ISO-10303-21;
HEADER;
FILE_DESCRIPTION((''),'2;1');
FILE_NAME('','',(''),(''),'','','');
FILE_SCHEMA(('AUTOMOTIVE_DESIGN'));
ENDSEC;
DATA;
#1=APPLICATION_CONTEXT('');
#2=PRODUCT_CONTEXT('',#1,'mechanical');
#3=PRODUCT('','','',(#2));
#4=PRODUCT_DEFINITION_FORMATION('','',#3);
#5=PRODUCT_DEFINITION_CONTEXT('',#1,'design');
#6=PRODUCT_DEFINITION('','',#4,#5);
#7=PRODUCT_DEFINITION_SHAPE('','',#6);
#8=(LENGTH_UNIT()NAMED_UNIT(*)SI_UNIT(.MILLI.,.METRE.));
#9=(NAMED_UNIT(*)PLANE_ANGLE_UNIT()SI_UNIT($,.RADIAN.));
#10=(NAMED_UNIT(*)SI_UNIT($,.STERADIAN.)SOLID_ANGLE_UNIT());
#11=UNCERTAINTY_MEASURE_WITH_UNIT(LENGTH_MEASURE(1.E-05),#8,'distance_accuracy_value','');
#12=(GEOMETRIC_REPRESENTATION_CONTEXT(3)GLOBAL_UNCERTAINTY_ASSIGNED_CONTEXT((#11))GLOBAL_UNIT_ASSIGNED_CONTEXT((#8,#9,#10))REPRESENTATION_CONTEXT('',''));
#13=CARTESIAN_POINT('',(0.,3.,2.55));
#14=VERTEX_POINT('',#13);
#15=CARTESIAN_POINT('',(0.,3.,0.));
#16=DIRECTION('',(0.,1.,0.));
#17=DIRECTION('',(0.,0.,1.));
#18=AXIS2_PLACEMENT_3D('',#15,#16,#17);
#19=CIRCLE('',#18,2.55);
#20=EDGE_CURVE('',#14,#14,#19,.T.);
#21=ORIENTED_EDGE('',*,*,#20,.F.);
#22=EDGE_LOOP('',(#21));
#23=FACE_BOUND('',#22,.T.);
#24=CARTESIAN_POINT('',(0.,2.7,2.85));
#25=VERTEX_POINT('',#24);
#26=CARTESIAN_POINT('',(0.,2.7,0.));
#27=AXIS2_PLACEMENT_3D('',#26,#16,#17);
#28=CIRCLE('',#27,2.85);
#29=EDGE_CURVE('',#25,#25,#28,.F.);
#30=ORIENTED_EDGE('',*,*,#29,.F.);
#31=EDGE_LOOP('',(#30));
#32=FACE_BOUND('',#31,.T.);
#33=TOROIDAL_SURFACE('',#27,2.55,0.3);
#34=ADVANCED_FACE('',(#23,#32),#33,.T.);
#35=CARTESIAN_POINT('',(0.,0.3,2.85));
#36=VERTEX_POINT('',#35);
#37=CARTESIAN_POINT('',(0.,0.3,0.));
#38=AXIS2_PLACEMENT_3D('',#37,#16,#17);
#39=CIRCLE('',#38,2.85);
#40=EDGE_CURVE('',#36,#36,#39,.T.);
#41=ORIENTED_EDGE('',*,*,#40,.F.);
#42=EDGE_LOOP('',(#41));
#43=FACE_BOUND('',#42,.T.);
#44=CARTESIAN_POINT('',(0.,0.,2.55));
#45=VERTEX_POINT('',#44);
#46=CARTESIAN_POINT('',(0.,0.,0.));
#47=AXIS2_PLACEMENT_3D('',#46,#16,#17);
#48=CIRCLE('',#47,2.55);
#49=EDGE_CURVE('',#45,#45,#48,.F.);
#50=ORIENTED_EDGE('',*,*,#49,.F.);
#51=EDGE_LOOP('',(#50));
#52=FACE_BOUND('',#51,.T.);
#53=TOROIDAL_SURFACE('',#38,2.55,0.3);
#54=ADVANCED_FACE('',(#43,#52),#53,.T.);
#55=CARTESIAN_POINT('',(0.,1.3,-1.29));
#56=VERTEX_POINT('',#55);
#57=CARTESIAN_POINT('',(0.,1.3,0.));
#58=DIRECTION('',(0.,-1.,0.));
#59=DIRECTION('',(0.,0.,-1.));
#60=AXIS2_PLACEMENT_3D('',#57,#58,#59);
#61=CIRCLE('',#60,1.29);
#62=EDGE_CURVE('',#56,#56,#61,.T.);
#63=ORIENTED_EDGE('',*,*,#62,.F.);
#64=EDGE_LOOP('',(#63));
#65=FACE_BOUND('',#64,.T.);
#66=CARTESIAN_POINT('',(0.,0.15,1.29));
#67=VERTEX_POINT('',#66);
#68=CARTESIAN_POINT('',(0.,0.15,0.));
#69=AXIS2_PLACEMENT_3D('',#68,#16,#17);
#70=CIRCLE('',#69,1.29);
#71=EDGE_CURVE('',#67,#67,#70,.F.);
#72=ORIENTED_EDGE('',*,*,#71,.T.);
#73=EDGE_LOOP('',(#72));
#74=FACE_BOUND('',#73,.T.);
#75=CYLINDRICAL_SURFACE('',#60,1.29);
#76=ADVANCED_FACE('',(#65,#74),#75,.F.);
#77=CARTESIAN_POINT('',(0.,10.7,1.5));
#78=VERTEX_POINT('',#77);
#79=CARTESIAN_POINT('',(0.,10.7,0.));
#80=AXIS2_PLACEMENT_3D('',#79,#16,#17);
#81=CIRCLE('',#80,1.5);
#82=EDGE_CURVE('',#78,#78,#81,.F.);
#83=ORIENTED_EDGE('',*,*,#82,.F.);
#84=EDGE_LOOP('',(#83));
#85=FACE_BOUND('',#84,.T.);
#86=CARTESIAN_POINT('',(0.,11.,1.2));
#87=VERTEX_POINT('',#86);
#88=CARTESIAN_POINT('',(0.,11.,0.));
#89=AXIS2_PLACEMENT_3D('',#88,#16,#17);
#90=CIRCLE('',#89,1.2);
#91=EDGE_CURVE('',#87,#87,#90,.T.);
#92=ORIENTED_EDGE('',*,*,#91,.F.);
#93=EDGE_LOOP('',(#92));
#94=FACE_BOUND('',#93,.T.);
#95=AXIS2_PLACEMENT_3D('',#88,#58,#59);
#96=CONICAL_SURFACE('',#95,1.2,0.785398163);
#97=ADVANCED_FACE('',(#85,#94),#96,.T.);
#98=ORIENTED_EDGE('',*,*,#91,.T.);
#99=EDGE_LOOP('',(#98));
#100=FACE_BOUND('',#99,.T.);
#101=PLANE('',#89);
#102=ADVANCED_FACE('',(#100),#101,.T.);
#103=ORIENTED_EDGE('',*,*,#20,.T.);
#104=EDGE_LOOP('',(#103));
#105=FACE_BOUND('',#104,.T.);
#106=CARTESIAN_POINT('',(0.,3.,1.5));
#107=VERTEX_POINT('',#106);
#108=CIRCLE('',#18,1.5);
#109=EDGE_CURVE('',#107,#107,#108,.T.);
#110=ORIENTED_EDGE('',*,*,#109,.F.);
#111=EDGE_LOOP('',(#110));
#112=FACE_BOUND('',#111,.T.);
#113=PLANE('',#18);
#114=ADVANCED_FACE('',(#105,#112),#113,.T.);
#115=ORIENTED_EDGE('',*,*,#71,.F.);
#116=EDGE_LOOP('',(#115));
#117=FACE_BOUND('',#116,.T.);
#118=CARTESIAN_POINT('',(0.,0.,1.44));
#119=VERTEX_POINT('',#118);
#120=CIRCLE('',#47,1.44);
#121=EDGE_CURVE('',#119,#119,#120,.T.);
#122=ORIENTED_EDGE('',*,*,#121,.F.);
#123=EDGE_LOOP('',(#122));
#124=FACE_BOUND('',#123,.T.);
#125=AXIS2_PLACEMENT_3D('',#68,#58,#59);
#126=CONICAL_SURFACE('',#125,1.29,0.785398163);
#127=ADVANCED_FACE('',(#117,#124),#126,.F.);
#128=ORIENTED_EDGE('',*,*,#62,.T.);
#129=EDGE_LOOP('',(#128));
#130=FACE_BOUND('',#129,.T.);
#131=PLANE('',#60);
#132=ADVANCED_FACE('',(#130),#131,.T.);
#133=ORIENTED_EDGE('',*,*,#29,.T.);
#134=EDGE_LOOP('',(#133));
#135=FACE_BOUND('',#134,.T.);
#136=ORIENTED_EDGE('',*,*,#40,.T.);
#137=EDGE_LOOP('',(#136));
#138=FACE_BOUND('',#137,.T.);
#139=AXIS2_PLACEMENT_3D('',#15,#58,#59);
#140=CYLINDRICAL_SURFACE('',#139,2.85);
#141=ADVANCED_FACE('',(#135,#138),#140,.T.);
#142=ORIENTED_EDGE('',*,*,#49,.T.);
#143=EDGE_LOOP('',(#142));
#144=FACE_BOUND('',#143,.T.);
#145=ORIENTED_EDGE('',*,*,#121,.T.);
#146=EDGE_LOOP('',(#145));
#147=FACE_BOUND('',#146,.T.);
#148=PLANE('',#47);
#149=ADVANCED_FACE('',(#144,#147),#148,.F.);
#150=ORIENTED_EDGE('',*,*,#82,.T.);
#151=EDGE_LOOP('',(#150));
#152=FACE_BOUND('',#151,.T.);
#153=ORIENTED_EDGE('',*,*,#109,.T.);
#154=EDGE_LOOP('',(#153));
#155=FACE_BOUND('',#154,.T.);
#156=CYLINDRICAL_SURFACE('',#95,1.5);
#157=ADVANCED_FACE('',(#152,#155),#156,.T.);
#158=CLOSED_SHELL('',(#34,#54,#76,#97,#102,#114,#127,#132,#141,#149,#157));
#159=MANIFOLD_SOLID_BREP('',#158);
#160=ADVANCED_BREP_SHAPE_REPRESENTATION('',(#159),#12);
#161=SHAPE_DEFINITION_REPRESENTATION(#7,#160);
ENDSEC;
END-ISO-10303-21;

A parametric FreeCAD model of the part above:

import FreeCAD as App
import Part
import Sketcher
from FreeCAD import Vector
Q = App.Units.Quantity


def edges_at(feature, points):
    """Names of the edges that pass closest to the given points."""
    edges = feature.Shape.Edges
    near = lambda p: min(range(len(edges)), key=lambda i: edges[i].distToShape(Part.Vertex(*p))[0])
    return sorted({f"Edge{near(p) + 1}" for p in points})

doc = App.newDocument("Part")
body = doc.addObject("PartDesign::Body", "Body")

sketch1 = body.newObject("Sketcher::SketchObject", "Sketch")
sketch1.AttachmentSupport = (doc.getObject("XZ_Plane"), [""])
sketch1.MapMode = "FlatFace"
sketch1.addGeometry(Part.Circle(Vector(0, 0, 0), Vector(0, 0, 1), 2.9), False)
sketch1.addConstraint([
    Sketcher.Constraint("Coincident", 0, 3, -1, 1),
    Sketcher.Constraint("Diameter", 0, Q("5.7 mm")),
])
pad1 = body.newObject("PartDesign::Pad", "Pad")
pad1.Profile = sketch1
pad1.Length = 3
pad1.Reversed = True

sketch2 = body.newObject("Sketcher::SketchObject", "Sketch001")
sketch2.AttachmentSupport = (doc.getObject("XZ_Plane"), [""])
sketch2.MapMode = "FlatFace"
sketch2.AttachmentOffset = App.Placement(Vector(0, 0, -3), App.Rotation())
sketch2.addGeometry(Part.Circle(Vector(0, 0, 0), Vector(0, 0, 1), 1.5), False)
sketch2.addConstraint([
    Sketcher.Constraint("Coincident", 0, 3, -1, 1),
    Sketcher.Constraint("Diameter", 0, Q("3 mm")),
])
pad2 = body.newObject("PartDesign::Pad", "Pad001")
pad2.Profile = sketch2
pad2.Length = 8
pad2.Reversed = True

sketch3 = body.newObject("Sketcher::SketchObject", "Sketch002")
sketch3.AttachmentSupport = (doc.getObject("XZ_Plane"), [""])
sketch3.MapMode = "FlatFace"
sketch3.addGeometry(Part.Circle(Vector(0, 0, 0), Vector(0, 0, 1), 1.3), False)
sketch3.addConstraint([
    Sketcher.Constraint("Coincident", 0, 3, -1, 1),
    Sketcher.Constraint("Diameter", 0, Q("2.58 mm")),
])
pocket1 = body.newObject("PartDesign::Pocket", "Pocket")
pocket1.Profile = sketch3
pocket1.Length = 1.3
doc.recompute()

fillet = body.newObject("PartDesign::Fillet", "Fillet")
fillet.Base = (pocket1, edges_at(pocket1, [(0, 0, -2.85), (0, 3, -2.85)]))
fillet.Radius = 0.3
doc.recompute()

chamfer = body.newObject("PartDesign::Chamfer", "Chamfer")
chamfer.Base = (fillet, edges_at(fillet, [(0, 11, -1.5)]))
chamfer.Size = 0.3
doc.recompute()

chamfer2 = body.newObject("PartDesign::Chamfer", "Chamfer001")
chamfer2.Base = (chamfer, edges_at(chamfer, [(0, 0, 1.29)]))
chamfer2.Size = 0.15

doc.recompute()
